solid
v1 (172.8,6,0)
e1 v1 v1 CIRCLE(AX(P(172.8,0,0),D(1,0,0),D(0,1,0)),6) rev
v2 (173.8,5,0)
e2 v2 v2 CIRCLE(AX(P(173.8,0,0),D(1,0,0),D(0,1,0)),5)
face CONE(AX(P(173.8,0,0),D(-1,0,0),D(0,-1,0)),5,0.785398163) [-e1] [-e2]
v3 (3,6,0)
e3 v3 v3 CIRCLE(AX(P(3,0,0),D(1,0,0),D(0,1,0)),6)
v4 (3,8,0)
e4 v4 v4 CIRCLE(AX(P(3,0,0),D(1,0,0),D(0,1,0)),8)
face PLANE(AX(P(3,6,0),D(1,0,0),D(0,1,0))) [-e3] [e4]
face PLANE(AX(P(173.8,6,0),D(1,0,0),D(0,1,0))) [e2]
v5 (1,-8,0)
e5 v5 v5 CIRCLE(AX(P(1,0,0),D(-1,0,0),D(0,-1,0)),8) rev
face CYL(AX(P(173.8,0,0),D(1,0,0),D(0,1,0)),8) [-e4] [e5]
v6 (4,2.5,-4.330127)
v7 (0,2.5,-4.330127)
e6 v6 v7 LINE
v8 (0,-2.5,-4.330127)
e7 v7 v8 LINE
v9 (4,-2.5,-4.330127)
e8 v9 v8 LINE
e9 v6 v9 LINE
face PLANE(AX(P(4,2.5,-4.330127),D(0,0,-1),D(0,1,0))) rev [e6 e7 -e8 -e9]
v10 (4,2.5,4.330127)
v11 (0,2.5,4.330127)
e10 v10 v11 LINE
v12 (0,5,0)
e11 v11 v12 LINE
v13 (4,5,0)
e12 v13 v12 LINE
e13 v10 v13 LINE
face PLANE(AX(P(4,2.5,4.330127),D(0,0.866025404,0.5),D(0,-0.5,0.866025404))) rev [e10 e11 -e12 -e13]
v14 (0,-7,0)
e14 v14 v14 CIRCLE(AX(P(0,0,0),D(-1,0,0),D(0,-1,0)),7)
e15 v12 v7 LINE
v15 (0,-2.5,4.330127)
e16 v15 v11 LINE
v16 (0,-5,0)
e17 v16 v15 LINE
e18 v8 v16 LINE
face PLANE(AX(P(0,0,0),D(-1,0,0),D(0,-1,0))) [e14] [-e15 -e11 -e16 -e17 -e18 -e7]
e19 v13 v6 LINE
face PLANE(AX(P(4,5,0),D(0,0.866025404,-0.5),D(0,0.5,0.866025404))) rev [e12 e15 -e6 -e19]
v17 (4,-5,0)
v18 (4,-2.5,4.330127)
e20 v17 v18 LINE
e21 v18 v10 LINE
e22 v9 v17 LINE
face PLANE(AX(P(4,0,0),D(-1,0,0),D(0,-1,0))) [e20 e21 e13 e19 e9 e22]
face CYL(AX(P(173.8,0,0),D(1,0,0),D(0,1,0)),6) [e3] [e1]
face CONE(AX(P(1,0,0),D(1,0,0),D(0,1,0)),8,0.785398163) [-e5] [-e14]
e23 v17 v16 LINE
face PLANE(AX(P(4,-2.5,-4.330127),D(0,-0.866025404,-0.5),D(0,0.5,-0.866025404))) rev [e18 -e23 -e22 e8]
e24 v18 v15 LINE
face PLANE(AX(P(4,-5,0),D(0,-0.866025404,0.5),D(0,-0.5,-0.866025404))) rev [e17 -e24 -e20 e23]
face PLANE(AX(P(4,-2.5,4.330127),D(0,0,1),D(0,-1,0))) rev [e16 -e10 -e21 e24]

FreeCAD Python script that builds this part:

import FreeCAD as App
import Part
import Sketcher
from FreeCAD import Vector
Q = App.Units.Quantity


def edges_at(feature, points):
    """Names of the edges that pass closest to the given points."""
    edges = feature.Shape.Edges
    near = lambda p: min(range(len(edges)), key=lambda i: edges[i].distToShape(Part.Vertex(*p))[0])
    return sorted({f"Edge{near(p) + 1}" for p in points})


def add_polygon(sketch, points):
    """Adds a closed chain of lines whose ends are joined by coincident constraints."""
    first, n = sketch.GeometryCount, len(points)
    for a, b in zip(points, points[1:] + points[:1]):
        sketch.addGeometry(Part.LineSegment(App.Vector(*a, 0), App.Vector(*b, 0)), False)
    for i in range(n):
        sketch.addConstraint(Sketcher.Constraint("Coincident", first + i, 2, first + (i + 1) % n, 1))

doc = App.newDocument("Part")
body = doc.addObject("PartDesign::Body", "Body")

# Sketch on XY plane
sketch1 = doc.addObject("Sketcher::SketchObject", "Sketch")
body.addObject(sketch1)
sketch1.AttachmentSupport = (doc.XY_Plane, [""])
sketch1.MapMode = "FlatFace"
add_polygon(sketch1, [(0, 8), (0, 0), (173.8, 0), (173.8, 6), (3, 6), (3, 8)])  # lines 0-5
sketch1.addConstraint(Sketcher.Constraint("Vertical", 0))
sketch1.addConstraint(Sketcher.Constraint("Horizontal", 1))
sketch1.addConstraint(Sketcher.Constraint("Vertical", 2))
sketch1.addConstraint(Sketcher.Constraint("Horizontal", 3))
sketch1.addConstraint(Sketcher.Constraint("Vertical", 4))
sketch1.addConstraint(Sketcher.Constraint("Horizontal", 5))
sketch1.addConstraint(Sketcher.Constraint("Coincident", 0, 2, -1, 1))
sketch1.addConstraint(Sketcher.Constraint("DistanceX", 5, 2, 5, 1, 3.0))
sketch1.addConstraint(Sketcher.Constraint("DistanceY", 0, 2, 0, 1, 8.0))
sketch1.addConstraint(Sketcher.Constraint("DistanceY", 2, 1, 2, 2, 6.0))
sketch1.addConstraint(Sketcher.Constraint("DistanceX", 1, 1, 1, 2, 173.8))
revolution = doc.addObject("PartDesign::Revolution", "Revolution")
body.addObject(revolution)
revolution.Profile = sketch1
revolution.ReferenceAxis = (sketch1, ["H_Axis"])
revolution.Angle = 360

# Sketch on YZ plane
sketch2 = doc.addObject("Sketcher::SketchObject", "Sketch001")
body.addObject(sketch2)
sketch2.AttachmentSupport = (doc.YZ_Plane, [""])
sketch2.MapMode = "FlatFace"
add_polygon(sketch2, [(5, 0), (2.5, -4.330127), (-2.5, -4.330127), (-5, 0), (-2.5, 4.330127), (2.5, 4.330127)])  # lines 0-5
sketch2.addConstraint(Sketcher.Constraint("Horizontal", 1))
sketch2.addConstraint(Sketcher.Constraint("Horizontal", 4))
sketch2.addConstraint(Sketcher.Constraint("Symmetric", 0, 2, 3, 2, -1, 1))
sketch2.addConstraint(Sketcher.Constraint("Symmetric", 2, 2, 5, 2, -1, 1))
sketch2.addConstraint(Sketcher.Constraint("PointOnObject", 2, 2, -1))
sketch2.addConstraint(Sketcher.Constraint("Parallel", 2, 5))
sketch2.addConstraint(Sketcher.Constraint("Vertical", 1, 2, 3, 2))
sketch2.addConstraint(Sketcher.Constraint("DistanceX", 1, 2, 1, 1, 5.0))
sketch2.addConstraint(Sketcher.Constraint("Angle", 0, Q("-120 deg")))
sketch2.addConstraint(Sketcher.Constraint("Distance", 0, 5.0))
pocket1 = doc.addObject("PartDesign::Pocket", "Pocket")
body.addObject(pocket1)
pocket1.Profile = sketch2
pocket1.Length = 4
pocket1.Reversed = True
doc.recompute()

chamfer = doc.addObject("PartDesign::Chamfer", "Chamfer")
body.addObject(chamfer)
chamfer.Base = (pocket1, edges_at(pocket1, [(173.8, -6, 0), (0, -8, 0)]))
chamfer.Size = 1

doc.recompute()
